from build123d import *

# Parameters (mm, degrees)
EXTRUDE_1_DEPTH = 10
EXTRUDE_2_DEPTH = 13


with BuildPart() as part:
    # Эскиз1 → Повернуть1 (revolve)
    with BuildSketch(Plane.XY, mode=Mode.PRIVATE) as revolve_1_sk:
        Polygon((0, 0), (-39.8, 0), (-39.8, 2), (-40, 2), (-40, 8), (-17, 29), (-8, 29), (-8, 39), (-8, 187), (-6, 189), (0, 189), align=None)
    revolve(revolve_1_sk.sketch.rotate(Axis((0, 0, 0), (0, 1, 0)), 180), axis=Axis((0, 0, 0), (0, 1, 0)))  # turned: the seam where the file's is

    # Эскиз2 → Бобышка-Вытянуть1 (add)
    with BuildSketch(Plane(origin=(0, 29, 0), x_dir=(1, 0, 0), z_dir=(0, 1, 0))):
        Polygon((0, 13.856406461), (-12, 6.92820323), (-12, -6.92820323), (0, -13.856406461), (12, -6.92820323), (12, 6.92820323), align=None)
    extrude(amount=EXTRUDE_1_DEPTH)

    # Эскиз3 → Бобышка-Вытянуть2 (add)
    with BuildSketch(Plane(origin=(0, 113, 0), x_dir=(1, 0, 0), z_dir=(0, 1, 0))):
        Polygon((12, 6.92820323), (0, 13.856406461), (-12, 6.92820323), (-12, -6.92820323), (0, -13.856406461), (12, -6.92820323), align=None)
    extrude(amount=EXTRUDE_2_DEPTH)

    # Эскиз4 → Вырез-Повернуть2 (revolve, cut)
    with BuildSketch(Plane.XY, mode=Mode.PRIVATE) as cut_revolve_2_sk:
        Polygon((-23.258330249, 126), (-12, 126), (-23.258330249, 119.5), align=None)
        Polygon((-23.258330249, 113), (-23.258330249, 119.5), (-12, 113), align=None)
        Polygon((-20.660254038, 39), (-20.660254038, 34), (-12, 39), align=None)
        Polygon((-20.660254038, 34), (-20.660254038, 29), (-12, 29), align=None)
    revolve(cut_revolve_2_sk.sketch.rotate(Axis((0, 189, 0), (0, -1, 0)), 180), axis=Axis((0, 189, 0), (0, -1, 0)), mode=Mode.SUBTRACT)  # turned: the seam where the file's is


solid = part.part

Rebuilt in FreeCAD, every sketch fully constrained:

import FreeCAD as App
import Part
import Sketcher
from FreeCAD import Vector
Q = App.Units.Quantity


def add_polygon(sketch, points):
    """Adds a closed chain of lines whose ends are joined by coincident constraints."""
    first, n = sketch.GeometryCount, len(points)
    for a, b in zip(points, points[1:] + points[:1]):
        sketch.addGeometry(Part.LineSegment(App.Vector(*a, 0), App.Vector(*b, 0)), False)
    for i in range(n):
        sketch.addConstraint(Sketcher.Constraint("Coincident", first + i, 2, first + (i + 1) % n, 1))

doc = App.newDocument("Part")
body = doc.addObject("PartDesign::Body", "Body")

sketch1 = body.newObject("Sketcher::SketchObject", "Sketch")
sketch1.AttachmentSupport = (doc.getObject("XY_Plane"), [""])
sketch1.MapMode = "FlatFace"
add_polygon(sketch1, [(-39.8, 0), (0, 0), (0, 189), (-6, 189), (-8, 187), (-8, 29), (-17, 29), (-40, 8), (-40, 2), (-39.8, 2)])
sketch1.addConstraint([
    Sketcher.Constraint("Horizontal", 0),
    Sketcher.Constraint("Vertical", 1),
    Sketcher.Constraint("Horizontal", 2),
    Sketcher.Constraint("Vertical", 4),
    Sketcher.Constraint("Horizontal", 5),
    Sketcher.Constraint("Vertical", 7),
    Sketcher.Constraint("Horizontal", 8),
    Sketcher.Constraint("Vertical", 9),
    Sketcher.Constraint("Coincident", 0, 2, -1, 1),
    Sketcher.Constraint("Equal", 2, 7),
    Sketcher.Constraint("DistanceX", 2, 2, 2, 1, 6.0),
    Sketcher.Constraint("DistanceX", 5, 2, 5, 1, 9.0),
    Sketcher.Constraint("DistanceY", 1, 1, 1, 2, 189.0),
    Sketcher.Constraint("DistanceY", 4, 2, 4, 1, 158.0),
    Sketcher.Constraint("DistanceY", 9, 2, 9, 1, 2.0),
    Sketcher.Constraint("Angle", 3, Q("-135 deg")),
    Sketcher.Constraint("DistanceX", 0, 1, 0, 2, 39.8),
    Sketcher.Constraint("DistanceX", 8, 1, 8, 2, 0.2),
    Sketcher.Constraint("DistanceX", 3, 2, -1, 1, 8.0),
])
revolution = body.newObject("PartDesign::Revolution", "Revolution")
revolution.Profile = sketch1
revolution.ReferenceAxis = (sketch1, ["V_Axis"])
revolution.Angle = 360

sketch2 = body.newObject("Sketcher::SketchObject", "Sketch001")
sketch2.AttachmentSupport = (doc.getObject("XZ_Plane"), [""])
sketch2.MapMode = "FlatFace"
sketch2.AttachmentOffset = App.Placement(Vector(0, 0, -29), App.Rotation())
add_polygon(sketch2, [(0, -13.856406), (-12, -6.928203), (-12, 6.928203), (0, 13.856406), (12, 6.928203), (12, -6.928203)])
sketch2.addConstraint([
    Sketcher.Constraint("Vertical", 1),
    Sketcher.Constraint("Vertical", 4),
    Sketcher.Constraint("Symmetric", 0, 2, 3, 2, -1, 1),
    Sketcher.Constraint("Symmetric", 2, 2, 5, 2, -1, 1),
    Sketcher.Constraint("PointOnObject", 2, 2, -2),
    Sketcher.Constraint("Parallel", 2, 5),
    Sketcher.Constraint("Horizontal", 1, 2, 3, 2),
    Sketcher.Constraint("Angle", 0, Q("150 deg")),
    Sketcher.Constraint("DistanceX", 0, 2, -1, 1, 12.0),
    Sketcher.Constraint("DistanceY", 1, 1, 1, 2, 13.856406),
])
pad1 = body.newObject("PartDesign::Pad", "Pad")
pad1.Profile = sketch2
pad1.Length = 10
pad1.Reversed = True

sketch3 = body.newObject("Sketcher::SketchObject", "Sketch002")
sketch3.AttachmentSupport = (doc.getObject("XZ_Plane"), [""])
sketch3.MapMode = "FlatFace"
sketch3.AttachmentOffset = App.Placement(Vector(0, 0, -113), App.Rotation())
add_polygon(sketch3, [(12, -6.928203), (0, -13.856406), (-12, -6.928203), (-12, 6.928203), (0, 13.856406), (12, 6.928203)])
sketch3.addConstraint([
    Sketcher.Constraint("Vertical", 2),
    Sketcher.Constraint("Vertical", 5),
    Sketcher.Constraint("Symmetric", 0, 2, 3, 2, -1, 1),
    Sketcher.Constraint("Symmetric", 1, 2, 4, 2, -1, 1),
    Sketcher.Constraint("PointOnObject", 0, 2, -2),
    Sketcher.Constraint("Parallel", 0, 3),
    Sketcher.Constraint("Horizontal", 2, 2, 4, 2),
    Sketcher.Constraint("Angle", 0, Q("-150 deg")),
    Sketcher.Constraint("DistanceX", 1, 2, -1, 1, 12.0),
    Sketcher.Constraint("DistanceY", 2, 1, 2, 2, 13.856406),
])
pad2 = body.newObject("PartDesign::Pad", "Pad001")
pad2.Profile = sketch3
pad2.Length = 13
pad2.Reversed = True

sketch4 = body.newObject("Sketcher::SketchObject", "Sketch003")
sketch4.AttachmentSupport = (doc.getObject("XY_Plane"), [""])
sketch4.MapMode = "FlatFace"
add_polygon(sketch4, [(-12, 126), (-23.25833, 126), (-23.25833, 119.5)])
add_polygon(sketch4, [(-23.25833, 119.5), (-23.25833, 113), (-12, 113)])
add_polygon(sketch4, [(-20.660254, 39), (-20.660254, 34), (-12, 39)])
add_polygon(sketch4, [(-20.660254, 34), (-20.660254, 29), (-12, 29)])
sketch4.addConstraint([
    Sketcher.Constraint("Horizontal", 0),
    Sketcher.Constraint("Vertical", 1),
    Sketcher.Constraint("Vertical", 3),
    Sketcher.Constraint("Horizontal", 4),
    Sketcher.Constraint("Vertical", 6),
    Sketcher.Constraint("Horizontal", 8),
    Sketcher.Constraint("Vertical", 9),
    Sketcher.Constraint("Horizontal", 10),
    Sketcher.Constraint("Coincident", 5, 2, 1, 2),
    Sketcher.Constraint("Coincident", 11, 2, 6, 2),
    Sketcher.Constraint("Parallel", 2, 7),
    Sketcher.Constraint("Parallel", 5, 11),
    Sketcher.Constraint("Vertical", 2, 2, 4, 2),
    Sketcher.Constraint("Vertical", 4, 2, 7, 2),
    Sketcher.Constraint("Vertical", 7, 2, 10, 2),
    Sketcher.Constraint("Equal", 1, 3),
    Sketcher.Constraint("DistanceY", 6, 2, 6, 1, 5.0),
    Sketcher.Constraint("Angle", 2, Q("30 deg")),
    Sketcher.Constraint("Distance", 2, 13.0),
    Sketcher.Constraint("DistanceY", -1, 1, 0, 2, 126.0),
    Sketcher.Constraint("DistanceX", 2, 2, -1, 1, 12.0),
    Sketcher.Constraint("DistanceY", -1, 1, 6, 2, 34.0),
])
groove = body.newObject("PartDesign::Groove", "Groove")
groove.Profile = sketch4
groove.ReferenceAxis = (sketch4, ["V_Axis"])
groove.Angle = 360

doc.recompute()
